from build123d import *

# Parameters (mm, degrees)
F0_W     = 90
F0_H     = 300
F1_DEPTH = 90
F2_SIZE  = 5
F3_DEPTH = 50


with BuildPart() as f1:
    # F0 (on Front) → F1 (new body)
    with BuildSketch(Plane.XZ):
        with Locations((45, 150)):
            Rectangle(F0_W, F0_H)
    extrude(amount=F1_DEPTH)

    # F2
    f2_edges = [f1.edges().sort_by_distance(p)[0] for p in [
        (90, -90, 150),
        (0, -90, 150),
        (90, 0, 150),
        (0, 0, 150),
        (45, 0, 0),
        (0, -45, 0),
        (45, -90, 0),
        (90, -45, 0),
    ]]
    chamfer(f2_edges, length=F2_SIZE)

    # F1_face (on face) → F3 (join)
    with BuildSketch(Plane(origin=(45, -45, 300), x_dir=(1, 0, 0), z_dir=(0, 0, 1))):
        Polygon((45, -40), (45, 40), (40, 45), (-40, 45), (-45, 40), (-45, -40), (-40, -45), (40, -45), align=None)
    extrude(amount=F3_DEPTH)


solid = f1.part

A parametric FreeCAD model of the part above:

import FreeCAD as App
import Part
import Sketcher
Q = App.Units.Quantity


def edges_at(feature, points):
    """Names of the edges that pass closest to the given points."""
    edges = feature.Shape.Edges
    near = lambda p: min(range(len(edges)), key=lambda i: edges[i].distToShape(Part.Vertex(*p))[0])
    return sorted({f"Edge{near(p) + 1}" for p in points})

doc = App.newDocument("Part")
params = doc.addObject("Spreadsheet::Sheet", "Params")
for row, (alias, value) in enumerate([
    ("sketch1_width", "90 mm"),
    ("sketch1_height", "300 mm"),
    ("pad1_length", "90 mm"),
    ("chamfer_size", "5 mm"),
    ("sketch2_width", "80 mm"),
    ("pad2_length", "50 mm"),
], start=1):
    params.set(f"A{row}", alias)
    params.set(f"B{row}", "=" + value)
    params.setAlias(f"B{row}", alias)

body = doc.addObject("PartDesign::Body", "Body")

# Sketch on XZ plane
sketch1 = body.newObject("Sketcher::SketchObject", "Sketch")
sketch1.AttachmentSupport = (doc.getObject("XZ_Plane"), [""])
sketch1.MapMode = "FlatFace"
sketch1.addGeometry(Part.LineSegment(App.Vector(0, 300, 0), App.Vector(0, 0, 0)), False)
sketch1.addGeometry(Part.LineSegment(App.Vector(0, 0, 0), App.Vector(90, 0, 0)), False)
sketch1.addGeometry(Part.LineSegment(App.Vector(90, 0, 0), App.Vector(90, 300, 0)), False)
sketch1.addGeometry(Part.LineSegment(App.Vector(90, 300, 0), App.Vector(0, 300, 0)), False)
sketch1.addConstraint(Sketcher.Constraint("Coincident", 0, 2, 1, 1))
sketch1.addConstraint(Sketcher.Constraint("Coincident", 1, 2, 2, 1))
sketch1.addConstraint(Sketcher.Constraint("Coincident", 2, 2, 3, 1))
sketch1.addConstraint(Sketcher.Constraint("Coincident", 3, 2, 0, 1))
sketch1.addConstraint(Sketcher.Constraint("Vertical", 0))
sketch1.addConstraint(Sketcher.Constraint("Horizontal", 1))
sketch1.addConstraint(Sketcher.Constraint("Vertical", 2))
sketch1.addConstraint(Sketcher.Constraint("Horizontal", 3))
sketch1.addConstraint(Sketcher.Constraint("Coincident", 0, 2, -1, 1))
sketch1.addConstraint(Sketcher.Constraint("DistanceX", 1, 1, 1, 2, Q("90 mm")))
sketch1.addConstraint(Sketcher.Constraint("DistanceY", 0, 2, 0, 1, Q("300 mm")))
sketch1.setExpression("Constraints[9]", "Params.sketch1_width")
sketch1.setExpression("Constraints[10]", "Params.sketch1_height")
pad1 = body.newObject("PartDesign::Pad", "Pad")
pad1.Profile = sketch1
pad1.setExpression("Length", "Params.pad1_length")
doc.recompute()

chamfer = body.newObject("PartDesign::Chamfer", "Chamfer")
chamfer.Base = (pad1, edges_at(pad1, [
    (90, -90, 150),
    (0, -90, 150),
    (90, 0, 150),
    (0, 0, 150),
    (45, 0, 0),
    (0, -45, 0),
    (45, -90, 0),
    (90, -45, 0),
]))
chamfer.setExpression("Size", "Params.chamfer_size")

# Sketch on XY plane
sketch2 = body.newObject("Sketcher::SketchObject", "Sketch001")
sketch2.AttachmentSupport = (doc.getObject("XY_Plane"), [""])
sketch2.MapMode = "FlatFace"
sketch2.AttachmentOffset = App.Placement(App.Vector(0, 0, 300), App.Rotation())
sketch2.addGeometry(Part.LineSegment(App.Vector(90, -85, 0), App.Vector(90, -5, 0)), False)
sketch2.addGeometry(Part.LineSegment(App.Vector(90, -5, 0), App.Vector(85, 0, 0)), False)
sketch2.addGeometry(Part.LineSegment(App.Vector(85, 0, 0), App.Vector(5, 0, 0)), False)
sketch2.addGeometry(Part.LineSegment(App.Vector(5, 0, 0), App.Vector(0, -5, 0)), False)
sketch2.addGeometry(Part.LineSegment(App.Vector(0, -5, 0), App.Vector(0, -85, 0)), False)
sketch2.addGeometry(Part.LineSegment(App.Vector(0, -85, 0), App.Vector(5, -90, 0)), False)
sketch2.addGeometry(Part.LineSegment(App.Vector(5, -90, 0), App.Vector(85, -90, 0)), False)
sketch2.addGeometry(Part.LineSegment(App.Vector(85, -90, 0), App.Vector(90, -85, 0)), False)
sketch2.addConstraint(Sketcher.Constraint("Coincident", 0, 2, 1, 1))
sketch2.addConstraint(Sketcher.Constraint("Coincident", 1, 2, 2, 1))
sketch2.addConstraint(Sketcher.Constraint("Coincident", 2, 2, 3, 1))
sketch2.addConstraint(Sketcher.Constraint("Coincident", 3, 2, 4, 1))
sketch2.addConstraint(Sketcher.Constraint("Coincident", 4, 2, 5, 1))
sketch2.addConstraint(Sketcher.Constraint("Coincident", 5, 2, 6, 1))
sketch2.addConstraint(Sketcher.Constraint("Coincident", 6, 2, 7, 1))
sketch2.addConstraint(Sketcher.Constraint("Coincident", 7, 2, 0, 1))
sketch2.addConstraint(Sketcher.Constraint("Vertical", 0))
sketch2.addConstraint(Sketcher.Constraint("Horizontal", 2))
sketch2.addConstraint(Sketcher.Constraint("Vertical", 4))
sketch2.addConstraint(Sketcher.Constraint("Horizontal", 6))
sketch2.addConstraint(Sketcher.Constraint("PointOnObject", 1, 2, -1))
sketch2.addConstraint(Sketcher.Constraint("PointOnObject", 3, 2, -2))
sketch2.addConstraint(Sketcher.Constraint("Perpendicular", 1, 3))
sketch2.addConstraint(Sketcher.Constraint("Perpendicular", 3, 5))
sketch2.addConstraint(Sketcher.Constraint("Perpendicular", 5, 7))
sketch2.addConstraint(Sketcher.Constraint("Horizontal", 0, 2, 3, 2))
sketch2.addConstraint(Sketcher.Constraint("Horizontal", 4, 2, 7, 2))
sketch2.addConstraint(Sketcher.Constraint("Vertical", 2, 2, 5, 2))
sketch2.addConstraint(Sketcher.Constraint("Vertical", 1, 2, 6, 2))
sketch2.addConstraint(Sketcher.Constraint("Equal", 6, 0))
sketch2.addConstraint(Sketcher.Constraint("DistanceX", 2, 2, 2, 1, Q("80 mm")))
sketch2.addConstraint(Sketcher.Constraint("DistanceX", -1, 1, 0, 2, Q("90 mm")))
sketch2.setExpression("Constraints[22]", "Params.sketch2_width")
pad2 = body.newObject("PartDesign::Pad", "Pad001")
pad2.Profile = sketch2
pad2.setExpression("Length", "Params.pad2_length")

doc.recompute()
